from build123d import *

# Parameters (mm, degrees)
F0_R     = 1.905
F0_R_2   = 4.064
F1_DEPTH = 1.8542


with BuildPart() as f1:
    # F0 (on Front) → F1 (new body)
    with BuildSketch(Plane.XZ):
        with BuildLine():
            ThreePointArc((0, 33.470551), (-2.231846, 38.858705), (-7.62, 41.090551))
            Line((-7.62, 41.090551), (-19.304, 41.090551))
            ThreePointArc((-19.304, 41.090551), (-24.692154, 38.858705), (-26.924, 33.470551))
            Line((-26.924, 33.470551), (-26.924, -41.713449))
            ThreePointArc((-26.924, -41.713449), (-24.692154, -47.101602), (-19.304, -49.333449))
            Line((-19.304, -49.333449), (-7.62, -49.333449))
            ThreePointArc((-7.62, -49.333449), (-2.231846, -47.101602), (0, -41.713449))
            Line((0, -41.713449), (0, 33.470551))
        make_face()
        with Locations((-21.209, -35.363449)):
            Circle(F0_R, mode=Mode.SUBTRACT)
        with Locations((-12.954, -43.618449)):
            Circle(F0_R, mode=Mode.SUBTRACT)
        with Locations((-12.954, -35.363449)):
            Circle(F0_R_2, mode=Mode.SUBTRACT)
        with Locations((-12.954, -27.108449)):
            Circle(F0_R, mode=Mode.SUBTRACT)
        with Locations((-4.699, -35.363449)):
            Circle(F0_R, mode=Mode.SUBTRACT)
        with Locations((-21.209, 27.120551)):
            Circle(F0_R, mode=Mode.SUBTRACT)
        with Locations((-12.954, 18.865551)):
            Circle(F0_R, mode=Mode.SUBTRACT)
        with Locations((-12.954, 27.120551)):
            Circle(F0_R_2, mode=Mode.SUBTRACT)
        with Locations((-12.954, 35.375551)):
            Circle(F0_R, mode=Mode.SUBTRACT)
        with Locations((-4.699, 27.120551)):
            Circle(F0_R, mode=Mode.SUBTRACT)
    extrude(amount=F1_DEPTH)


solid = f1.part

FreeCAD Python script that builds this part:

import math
import FreeCAD as App
import Part
import Sketcher

V = App.Vector
Q = App.Units.Quantity

doc = App.newDocument("Part")
body = doc.addObject("PartDesign::Body", "Body")

sketch1 = doc.addObject("Sketcher::SketchObject", "Sketch")
body.addObject(sketch1)
sketch1.AttachmentSupport = (doc.XZ_Plane, [""])
sketch1.MapMode = "FlatFace"
sketch1.addGeometry(Part.ArcOfCircle(Part.Circle(V(-7.6, 33.5, 0), V(0, 0, 1), 7.6), math.radians(0), math.radians(90)), False)
sketch1.addGeometry(Part.LineSegment(V(-7.6, 41.1, 0), V(-19.3, 41.1, 0)), False)
sketch1.addGeometry(Part.ArcOfCircle(Part.Circle(V(-19.3, 33.5, 0), V(0, 0, 1), 7.6), math.radians(90), math.radians(180)), False)
sketch1.addGeometry(Part.LineSegment(V(-26.9, 33.5, 0), V(-26.9, -41.7, 0)), False)
sketch1.addGeometry(Part.ArcOfCircle(Part.Circle(V(-19.3, -41.7, 0), V(0, 0, 1), 7.6), math.radians(-180), math.radians(-90)), False)
sketch1.addGeometry(Part.LineSegment(V(-19.3, -49.3, 0), V(-7.6, -49.3, 0)), False)
sketch1.addGeometry(Part.ArcOfCircle(Part.Circle(V(-7.6, -41.7, 0), V(0, 0, 1), 7.6), math.radians(-90), math.radians(0)), False)
sketch1.addGeometry(Part.LineSegment(V(0, -41.7, 0), V(0, 33.5, 0)), False)
sketch1.addGeometry(Part.Circle(V(-21.2, -35.4, 0), V(0, 0, 1), 1.9), False)
sketch1.addGeometry(Part.Circle(V(-13, -43.6, 0), V(0, 0, 1), 1.9), False)
sketch1.addGeometry(Part.Circle(V(-13, -35.4, 0), V(0, 0, 1), 4.1), False)
sketch1.addGeometry(Part.Circle(V(-13, -27.1, 0), V(0, 0, 1), 1.9), False)
sketch1.addGeometry(Part.Circle(V(-4.7, -35.4, 0), V(0, 0, 1), 1.9), False)
sketch1.addGeometry(Part.Circle(V(-21.2, 27.1, 0), V(0, 0, 1), 1.9), False)
sketch1.addGeometry(Part.Circle(V(-13, 18.9, 0), V(0, 0, 1), 1.9), False)
sketch1.addGeometry(Part.Circle(V(-13, 27.1, 0), V(0, 0, 1), 4.1), False)
sketch1.addGeometry(Part.Circle(V(-13, 35.4, 0), V(0, 0, 1), 1.9), False)
sketch1.addGeometry(Part.Circle(V(-4.7, 27.1, 0), V(0, 0, 1), 1.9), False)
sketch1.addConstraint(Sketcher.Constraint("Tangent", 0, 2, 1, 1))
sketch1.addConstraint(Sketcher.Constraint("Tangent", 1, 2, 2, 1))
sketch1.addConstraint(Sketcher.Constraint("Tangent", 2, 2, 3, 1))
sketch1.addConstraint(Sketcher.Constraint("Tangent", 3, 2, 4, 1))
sketch1.addConstraint(Sketcher.Constraint("Tangent", 4, 2, 5, 1))
sketch1.addConstraint(Sketcher.Constraint("Tangent", 5, 2, 6, 1))
sketch1.addConstraint(Sketcher.Constraint("Tangent", 6, 2, 7, 1))
sketch1.addConstraint(Sketcher.Constraint("Tangent", 7, 2, 0, 1))
sketch1.addConstraint(Sketcher.Constraint("Horizontal", 1))
sketch1.addConstraint(Sketcher.Constraint("Vertical", 3))
sketch1.addConstraint(Sketcher.Constraint("Horizontal", 5))
sketch1.addConstraint(Sketcher.Constraint("Vertical", 7))
sketch1.addConstraint(Sketcher.Constraint("Equal", 0, 2))
sketch1.addConstraint(Sketcher.Constraint("Equal", 2, 4))
sketch1.addConstraint(Sketcher.Constraint("Equal", 4, 6))
sketch1.addConstraint(Sketcher.Constraint("Equal", 8, 9))
sketch1.addConstraint(Sketcher.Constraint("Equal", 9, 11))
sketch1.addConstraint(Sketcher.Constraint("Equal", 11, 12))
sketch1.addConstraint(Sketcher.Constraint("Equal", 12, 13))
sketch1.addConstraint(Sketcher.Constraint("Equal", 13, 14))
sketch1.addConstraint(Sketcher.Constraint("Equal", 10, 15))
sketch1.addConstraint(Sketcher.Constraint("Equal", 14, 16))
sketch1.addConstraint(Sketcher.Constraint("Equal", 16, 17))
sketch1.addConstraint(Sketcher.Constraint("PointOnObject", 6, 2, -2))
sketch1.addConstraint(Sketcher.Constraint("Horizontal", 8, 3, 10, 3))
sketch1.addConstraint(Sketcher.Constraint("Horizontal", 10, 3, 12, 3))
sketch1.addConstraint(Sketcher.Constraint("Horizontal", 13, 3, 15, 3))
sketch1.addConstraint(Sketcher.Constraint("Horizontal", 15, 3, 17, 3))
sketch1.addConstraint(Sketcher.Constraint("Vertical", 9, 3, 10, 3))
sketch1.addConstraint(Sketcher.Constraint("Vertical", 10, 3, 11, 3))
sketch1.addConstraint(Sketcher.Constraint("Vertical", 8, 3, 13, 3))
sketch1.addConstraint(Sketcher.Constraint("Vertical", 11, 3, 14, 3))
sketch1.addConstraint(Sketcher.Constraint("Vertical", 14, 3, 15, 3))
sketch1.addConstraint(Sketcher.Constraint("Vertical", 15, 3, 16, 3))
sketch1.addConstraint(Sketcher.Constraint("Vertical", 12, 3, 17, 3))
sketch1.addConstraint(Sketcher.Constraint("Radius", 0, Q("0.3 in")))
sketch1.addConstraint(Sketcher.Constraint("Diameter", 8, Q("0.15 in")))
sketch1.addConstraint(Sketcher.Constraint("Diameter", 10, Q("0.32 in")))
sketch1.addConstraint(Sketcher.Constraint("DistanceX", 1, 2, 1, 1, Q("0.46 in")))
sketch1.addConstraint(Sketcher.Constraint("DistanceY", 3, 2, 3, 1, Q("2.96 in")))
sketch1.addConstraint(Sketcher.Constraint("DistanceX", 9, 3, -1, 1, Q("0.51 in")))
sketch1.addConstraint(Sketcher.Constraint("DistanceY", 4, 3, 8, 3, Q("0.25 in")))
sketch1.addConstraint(Sketcher.Constraint("DistanceY", 9, 3, 11, 3, Q("0.65 in")))
sketch1.addConstraint(Sketcher.Constraint("DistanceY", 13, 3, 2, 3, Q("0.25 in")))
sketch1.addConstraint(Sketcher.Constraint("DistanceY", 11, 3, 14, 3, Q("1.81 in")))
sketch1.addConstraint(Sketcher.Constraint("DistanceY", 14, 3, 16, 3, Q("0.65 in")))
sketch1.addConstraint(Sketcher.Constraint("DistanceX", 8, 3, -1, 1, Q("0.835 in")))
sketch1.addConstraint(Sketcher.Constraint("DistanceX", 12, 3, -1, 1, Q("0.185 in")))
sketch1.addConstraint(Sketcher.Constraint("DistanceY", 9, 3, 6, 3, Q("0.075 in")))
sketch1.addConstraint(Sketcher.Constraint("DistanceY", 4, 3, -1, 1, Q("41.713448 mm")))
pad1 = doc.addObject("PartDesign::Pad", "Pad")
body.addObject(pad1)
pad1.Profile = sketch1
pad1.Length = Q("0.073 in")

doc.recompute()
